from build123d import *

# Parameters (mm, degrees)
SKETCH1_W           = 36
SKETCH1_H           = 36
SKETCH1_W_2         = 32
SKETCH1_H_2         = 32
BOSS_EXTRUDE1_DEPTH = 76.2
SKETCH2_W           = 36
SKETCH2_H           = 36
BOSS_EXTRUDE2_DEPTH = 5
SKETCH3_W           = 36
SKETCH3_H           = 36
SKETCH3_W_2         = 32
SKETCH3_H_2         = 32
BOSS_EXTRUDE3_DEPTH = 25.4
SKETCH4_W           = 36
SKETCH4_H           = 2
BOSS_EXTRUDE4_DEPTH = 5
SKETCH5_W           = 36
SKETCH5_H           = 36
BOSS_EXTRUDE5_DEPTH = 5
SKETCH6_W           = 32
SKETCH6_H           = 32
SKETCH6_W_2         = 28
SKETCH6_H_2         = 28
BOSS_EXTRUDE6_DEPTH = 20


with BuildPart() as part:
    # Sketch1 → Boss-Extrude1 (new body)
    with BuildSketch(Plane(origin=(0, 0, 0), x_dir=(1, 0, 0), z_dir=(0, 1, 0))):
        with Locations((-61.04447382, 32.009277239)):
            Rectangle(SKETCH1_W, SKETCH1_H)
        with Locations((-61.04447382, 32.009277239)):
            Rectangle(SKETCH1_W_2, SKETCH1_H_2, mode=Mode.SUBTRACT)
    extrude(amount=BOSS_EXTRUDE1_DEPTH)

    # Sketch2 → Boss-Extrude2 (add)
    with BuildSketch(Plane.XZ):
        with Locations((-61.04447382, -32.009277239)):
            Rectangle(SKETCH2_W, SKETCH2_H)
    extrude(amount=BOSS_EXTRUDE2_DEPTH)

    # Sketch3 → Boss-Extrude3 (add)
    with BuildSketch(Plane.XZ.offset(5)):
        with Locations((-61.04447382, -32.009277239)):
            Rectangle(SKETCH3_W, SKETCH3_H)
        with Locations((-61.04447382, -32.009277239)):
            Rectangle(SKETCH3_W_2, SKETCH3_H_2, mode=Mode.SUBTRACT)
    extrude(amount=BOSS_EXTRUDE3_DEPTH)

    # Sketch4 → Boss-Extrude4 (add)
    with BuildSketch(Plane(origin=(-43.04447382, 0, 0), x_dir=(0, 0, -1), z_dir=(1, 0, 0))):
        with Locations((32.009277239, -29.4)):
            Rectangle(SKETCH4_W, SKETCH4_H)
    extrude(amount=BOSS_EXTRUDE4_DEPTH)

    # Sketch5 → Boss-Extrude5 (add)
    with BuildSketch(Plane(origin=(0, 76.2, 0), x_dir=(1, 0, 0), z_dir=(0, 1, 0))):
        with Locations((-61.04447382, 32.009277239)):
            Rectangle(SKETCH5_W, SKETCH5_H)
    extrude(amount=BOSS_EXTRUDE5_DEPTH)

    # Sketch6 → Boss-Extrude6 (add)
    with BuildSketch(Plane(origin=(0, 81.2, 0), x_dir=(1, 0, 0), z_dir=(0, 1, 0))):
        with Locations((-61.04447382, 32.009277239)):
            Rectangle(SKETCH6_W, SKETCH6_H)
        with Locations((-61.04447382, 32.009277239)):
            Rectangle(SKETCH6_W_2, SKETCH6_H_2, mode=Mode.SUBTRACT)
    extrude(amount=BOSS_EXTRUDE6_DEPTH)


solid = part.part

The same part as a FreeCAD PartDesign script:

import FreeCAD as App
import Part
import Sketcher

doc = App.newDocument("Part")
body = doc.addObject("PartDesign::Body", "Body")

# Sketch on XZ plane
sketch1 = body.newObject("Sketcher::SketchObject", "Sketch")
sketch1.AttachmentSupport = (doc.getObject("XZ_Plane"), [""])
sketch1.MapMode = "FlatFace"
sketch1.addGeometry([
    Part.LineSegment(App.Vector(-79.044474, -50.009277, 0), App.Vector(-79.044474, -14.009277, 0)),  # 0
    Part.LineSegment(App.Vector(-79.044474, -14.009277, 0), App.Vector(-43.044474, -14.009277, 0)),  # 1
    Part.LineSegment(App.Vector(-43.044474, -14.009277, 0), App.Vector(-43.044474, -50.009277, 0)),  # 2
    Part.LineSegment(App.Vector(-43.044474, -50.009277, 0), App.Vector(-79.044474, -50.009277, 0)),  # 3
    Part.LineSegment(App.Vector(-45.044474, -16.009277, 0), App.Vector(-77.044474, -16.009277, 0)),  # 4
    Part.LineSegment(App.Vector(-77.044474, -16.009277, 0), App.Vector(-77.044474, -48.009277, 0)),  # 5
    Part.LineSegment(App.Vector(-77.044474, -48.009277, 0), App.Vector(-45.044474, -48.009277, 0)),  # 6
    Part.LineSegment(App.Vector(-45.044474, -48.009277, 0), App.Vector(-45.044474, -16.009277, 0)),  # 7
], False)
sketch1.addConstraint([
    Sketcher.Constraint("Coincident", 0, 2, 1, 1),
    Sketcher.Constraint("Coincident", 1, 2, 2, 1),
    Sketcher.Constraint("Coincident", 2, 2, 3, 1),
    Sketcher.Constraint("Coincident", 3, 2, 0, 1),
    Sketcher.Constraint("Coincident", 4, 2, 5, 1),
    Sketcher.Constraint("Coincident", 5, 2, 6, 1),
    Sketcher.Constraint("Coincident", 6, 2, 7, 1),
    Sketcher.Constraint("Coincident", 7, 2, 4, 1),
    Sketcher.Constraint("Vertical", 0),
    Sketcher.Constraint("Horizontal", 1),
    Sketcher.Constraint("Vertical", 2),
    Sketcher.Constraint("Horizontal", 3),
    Sketcher.Constraint("Horizontal", 4),
    Sketcher.Constraint("Vertical", 5),
    Sketcher.Constraint("Horizontal", 6),
    Sketcher.Constraint("Vertical", 7),
    Sketcher.Constraint("Equal", 3, 0),
    Sketcher.Constraint("Equal", 6, 5),
    Sketcher.Constraint("DistanceX", 1, 1, 1, 2, 36.0),
    Sketcher.Constraint("DistanceX", 4, 2, 4, 1, 32.0),
    Sketcher.Constraint("DistanceX", 0, 2, 4, 2, 2.0),
    Sketcher.Constraint("DistanceY", 4, 2, 0, 2, 2.0),
    Sketcher.Constraint("DistanceX", 0, 2, -1, 1, 79.044474),
    Sketcher.Constraint("DistanceY", 0, 2, -1, 1, 14.009277),
])
pad1 = body.newObject("PartDesign::Pad", "Pad")
pad1.Profile = sketch1
pad1.Length = 76.2
pad1.Reversed = True

# Sketch on XZ plane
sketch2 = body.newObject("Sketcher::SketchObject", "Sketch001")
sketch2.AttachmentSupport = (doc.getObject("XZ_Plane"), [""])
sketch2.MapMode = "FlatFace"
sketch2.addGeometry([
    Part.LineSegment(App.Vector(-79.044474, -14.009277, 0), App.Vector(-79.044474, -50.009277, 0)),
    Part.LineSegment(App.Vector(-79.044474, -50.009277, 0), App.Vector(-43.044474, -50.009277, 0)),
    Part.LineSegment(App.Vector(-43.044474, -50.009277, 0), App.Vector(-43.044474, -14.009277, 0)),
    Part.LineSegment(App.Vector(-43.044474, -14.009277, 0), App.Vector(-79.044474, -14.009277, 0)),
], False)
sketch2.addConstraint([
    Sketcher.Constraint("Coincident", 0, 2, 1, 1),
    Sketcher.Constraint("Coincident", 1, 2, 2, 1),
    Sketcher.Constraint("Coincident", 2, 2, 3, 1),
    Sketcher.Constraint("Coincident", 3, 2, 0, 1),
    Sketcher.Constraint("Vertical", 0),
    Sketcher.Constraint("Horizontal", 1),
    Sketcher.Constraint("Vertical", 2),
    Sketcher.Constraint("Horizontal", 3),
    Sketcher.Constraint("Equal", 3, 0),
    Sketcher.Constraint("DistanceX", 1, 1, 1, 2, 36.0),
    Sketcher.Constraint("DistanceX", 0, 2, -1, 1, 79.044474),
    Sketcher.Constraint("DistanceY", 0, 2, -1, 1, 50.009277),
])
pad2 = body.newObject("PartDesign::Pad", "Pad001")
pad2.Profile = sketch2
pad2.Length = 5

# Sketch on XZ plane
sketch3 = body.newObject("Sketcher::SketchObject", "Sketch002")
sketch3.AttachmentSupport = (doc.getObject("XZ_Plane"), [""])
sketch3.MapMode = "FlatFace"
sketch3.AttachmentOffset = App.Placement(App.Vector(0, 0, 5), App.Rotation())
sketch3.addGeometry([
    Part.LineSegment(App.Vector(-79.044474, -14.009277, 0), App.Vector(-79.044474, -50.009277, 0)),  # 0
    Part.LineSegment(App.Vector(-79.044474, -50.009277, 0), App.Vector(-43.044474, -50.009277, 0)),  # 1
    Part.LineSegment(App.Vector(-43.044474, -50.009277, 0), App.Vector(-43.044474, -14.009277, 0)),  # 2
    Part.LineSegment(App.Vector(-43.044474, -14.009277, 0), App.Vector(-79.044474, -14.009277, 0)),  # 3
    Part.LineSegment(App.Vector(-45.044474, -48.009277, 0), App.Vector(-77.044474, -48.009277, 0)),  # 4
    Part.LineSegment(App.Vector(-77.044474, -48.009277, 0), App.Vector(-77.044474, -16.009277, 0)),  # 5
    Part.LineSegment(App.Vector(-77.044474, -16.009277, 0), App.Vector(-45.044474, -16.009277, 0)),  # 6
    Part.LineSegment(App.Vector(-45.044474, -16.009277, 0), App.Vector(-45.044474, -48.009277, 0)),  # 7
], False)
sketch3.addConstraint([
    Sketcher.Constraint("Coincident", 0, 2, 1, 1),
    Sketcher.Constraint("Coincident", 1, 2, 2, 1),
    Sketcher.Constraint("Coincident", 2, 2, 3, 1),
    Sketcher.Constraint("Coincident", 3, 2, 0, 1),
    Sketcher.Constraint("Coincident", 4, 2, 5, 1),
    Sketcher.Constraint("Coincident", 5, 2, 6, 1),
    Sketcher.Constraint("Coincident", 6, 2, 7, 1),
    Sketcher.Constraint("Coincident", 7, 2, 4, 1),
    Sketcher.Constraint("Vertical", 0),
    Sketcher.Constraint("Horizontal", 1),
    Sketcher.Constraint("Vertical", 2),
    Sketcher.Constraint("Horizontal", 3),
    Sketcher.Constraint("Horizontal", 4),
    Sketcher.Constraint("Vertical", 5),
    Sketcher.Constraint("Horizontal", 6),
    Sketcher.Constraint("Vertical", 7),
    Sketcher.Constraint("Equal", 3, 0),
    Sketcher.Constraint("Equal", 6, 5),
    Sketcher.Constraint("DistanceX", 1, 1, 1, 2, 36.0),
    Sketcher.Constraint("DistanceX", 4, 2, 4, 1, 32.0),
    Sketcher.Constraint("DistanceX", 0, 2, 4, 2, 2.0),
    Sketcher.Constraint("DistanceY", 0, 2, 4, 2, 2.0),
    Sketcher.Constraint("DistanceX", 0, 2, -1, 1, 79.044474),
    Sketcher.Constraint("DistanceY", 0, 2, -1, 1, 50.009277),
])
pad3 = body.newObject("PartDesign::Pad", "Pad002")
pad3.Profile = sketch3
pad3.Length = 25.4

# Sketch on YZ plane
sketch4 = body.newObject("Sketcher::SketchObject", "Sketch003")
sketch4.AttachmentSupport = (doc.getObject("YZ_Plane"), [""])
sketch4.MapMode = "FlatFace"
sketch4.AttachmentOffset = App.Placement(App.Vector(0, 0, -43.044474), App.Rotation())
sketch4.addGeometry([
    Part.LineSegment(App.Vector(-28.4, -14.009277, 0), App.Vector(-30.4, -14.009277, 0)),
    Part.LineSegment(App.Vector(-30.4, -14.009277, 0), App.Vector(-30.4, -50.009277, 0)),
    Part.LineSegment(App.Vector(-30.4, -50.009277, 0), App.Vector(-28.4, -50.009277, 0)),
    Part.LineSegment(App.Vector(-28.4, -50.009277, 0), App.Vector(-28.4, -14.009277, 0)),
], False)
sketch4.addConstraint([
    Sketcher.Constraint("Coincident", 0, 2, 1, 1),
    Sketcher.Constraint("Coincident", 1, 2, 2, 1),
    Sketcher.Constraint("Coincident", 2, 2, 3, 1),
    Sketcher.Constraint("Coincident", 3, 2, 0, 1),
    Sketcher.Constraint("Horizontal", 0),
    Sketcher.Constraint("Vertical", 1),
    Sketcher.Constraint("Horizontal", 2),
    Sketcher.Constraint("Vertical", 3),
    Sketcher.Constraint("DistanceX", 0, 2, 0, 1, 2.0),
    Sketcher.Constraint("DistanceY", 1, 2, 1, 1, 36.0),
    Sketcher.Constraint("DistanceX", 0, 2, -1, 1, 30.4),
    Sketcher.Constraint("DistanceY", 0, 2, -1, 1, 14.009277),
])
pad4 = body.newObject("PartDesign::Pad", "Pad003")
pad4.Profile = sketch4
pad4.Length = 5

# Sketch on XZ plane
sketch5 = body.newObject("Sketcher::SketchObject", "Sketch004")
sketch5.AttachmentSupport = (doc.getObject("XZ_Plane"), [""])
sketch5.MapMode = "FlatFace"
sketch5.AttachmentOffset = App.Placement(App.Vector(0, 0, -76.2), App.Rotation())
sketch5.addGeometry([
    Part.LineSegment(App.Vector(-79.044474, -50.009277, 0), App.Vector(-79.044474, -14.009277, 0)),
    Part.LineSegment(App.Vector(-79.044474, -14.009277, 0), App.Vector(-43.044474, -14.009277, 0)),
    Part.LineSegment(App.Vector(-43.044474, -14.009277, 0), App.Vector(-43.044474, -50.009277, 0)),
    Part.LineSegment(App.Vector(-43.044474, -50.009277, 0), App.Vector(-79.044474, -50.009277, 0)),
], False)
sketch5.addConstraint([
    Sketcher.Constraint("Coincident", 0, 2, 1, 1),
    Sketcher.Constraint("Coincident", 1, 2, 2, 1),
    Sketcher.Constraint("Coincident", 2, 2, 3, 1),
    Sketcher.Constraint("Coincident", 3, 2, 0, 1),
    Sketcher.Constraint("Vertical", 0),
    Sketcher.Constraint("Horizontal", 1),
    Sketcher.Constraint("Vertical", 2),
    Sketcher.Constraint("Horizontal", 3),
    Sketcher.Constraint("Equal", 3, 0),
    Sketcher.Constraint("DistanceX", 1, 1, 1, 2, 36.0),
    Sketcher.Constraint("DistanceX", 0, 2, -1, 1, 79.044474),
    Sketcher.Constraint("DistanceY", 0, 2, -1, 1, 14.009277),
])
pad5 = body.newObject("PartDesign::Pad", "Pad004")
pad5.Profile = sketch5
pad5.Length = 5
pad5.Reversed = True

# Sketch on XZ plane
sketch6 = body.newObject("Sketcher::SketchObject", "Sketch005")
sketch6.AttachmentSupport = (doc.getObject("XZ_Plane"), [""])
sketch6.MapMode = "FlatFace"
sketch6.AttachmentOffset = App.Placement(App.Vector(0, 0, -81.2), App.Rotation())
sketch6.addGeometry([
    Part.LineSegment(App.Vector(-77.044474, -48.009277, 0), App.Vector(-77.044474, -16.009277, 0)),  # 0
    Part.LineSegment(App.Vector(-77.044474, -16.009277, 0), App.Vector(-45.044474, -16.009277, 0)),  # 1
    Part.LineSegment(App.Vector(-45.044474, -16.009277, 0), App.Vector(-45.044474, -48.009277, 0)),  # 2
    Part.LineSegment(App.Vector(-45.044474, -48.009277, 0), App.Vector(-77.044474, -48.009277, 0)),  # 3
    Part.LineSegment(App.Vector(-47.044474, -18.009277, 0), App.Vector(-75.044474, -18.009277, 0)),  # 4
    Part.LineSegment(App.Vector(-75.044474, -18.009277, 0), App.Vector(-75.044474, -46.009277, 0)),  # 5
    Part.LineSegment(App.Vector(-75.044474, -46.009277, 0), App.Vector(-47.044474, -46.009277, 0)),  # 6
    Part.LineSegment(App.Vector(-47.044474, -46.009277, 0), App.Vector(-47.044474, -18.009277, 0)),  # 7
], False)
sketch6.addConstraint([
    Sketcher.Constraint("Coincident", 0, 2, 1, 1),
    Sketcher.Constraint("Coincident", 1, 2, 2, 1),
    Sketcher.Constraint("Coincident", 2, 2, 3, 1),
    Sketcher.Constraint("Coincident", 3, 2, 0, 1),
    Sketcher.Constraint("Coincident", 4, 2, 5, 1),
    Sketcher.Constraint("Coincident", 5, 2, 6, 1),
    Sketcher.Constraint("Coincident", 6, 2, 7, 1),
    Sketcher.Constraint("Coincident", 7, 2, 4, 1),
    Sketcher.Constraint("Vertical", 0),
    Sketcher.Constraint("Horizontal", 1),
    Sketcher.Constraint("Vertical", 2),
    Sketcher.Constraint("Horizontal", 3),
    Sketcher.Constraint("Horizontal", 4),
    Sketcher.Constraint("Vertical", 5),
    Sketcher.Constraint("Horizontal", 6),
    Sketcher.Constraint("Vertical", 7),
    Sketcher.Constraint("Equal", 3, 0),
    Sketcher.Constraint("Equal", 6, 5),
    Sketcher.Constraint("DistanceX", 1, 1, 1, 2, 32.0),
    Sketcher.Constraint("DistanceX", 4, 2, 4, 1, 28.0),
    Sketcher.Constraint("DistanceX", 0, 2, 4, 2, 2.0),
    Sketcher.Constraint("DistanceY", 4, 2, 0, 2, 2.0),
    Sketcher.Constraint("DistanceX", 0, 2, -1, 1, 77.044474),
    Sketcher.Constraint("DistanceY", 0, 2, -1, 1, 16.009277),
])
pad6 = body.newObject("PartDesign::Pad", "Pad005")
pad6.Profile = sketch6
pad6.Length = 20
pad6.Reversed = True

doc.recompute()
